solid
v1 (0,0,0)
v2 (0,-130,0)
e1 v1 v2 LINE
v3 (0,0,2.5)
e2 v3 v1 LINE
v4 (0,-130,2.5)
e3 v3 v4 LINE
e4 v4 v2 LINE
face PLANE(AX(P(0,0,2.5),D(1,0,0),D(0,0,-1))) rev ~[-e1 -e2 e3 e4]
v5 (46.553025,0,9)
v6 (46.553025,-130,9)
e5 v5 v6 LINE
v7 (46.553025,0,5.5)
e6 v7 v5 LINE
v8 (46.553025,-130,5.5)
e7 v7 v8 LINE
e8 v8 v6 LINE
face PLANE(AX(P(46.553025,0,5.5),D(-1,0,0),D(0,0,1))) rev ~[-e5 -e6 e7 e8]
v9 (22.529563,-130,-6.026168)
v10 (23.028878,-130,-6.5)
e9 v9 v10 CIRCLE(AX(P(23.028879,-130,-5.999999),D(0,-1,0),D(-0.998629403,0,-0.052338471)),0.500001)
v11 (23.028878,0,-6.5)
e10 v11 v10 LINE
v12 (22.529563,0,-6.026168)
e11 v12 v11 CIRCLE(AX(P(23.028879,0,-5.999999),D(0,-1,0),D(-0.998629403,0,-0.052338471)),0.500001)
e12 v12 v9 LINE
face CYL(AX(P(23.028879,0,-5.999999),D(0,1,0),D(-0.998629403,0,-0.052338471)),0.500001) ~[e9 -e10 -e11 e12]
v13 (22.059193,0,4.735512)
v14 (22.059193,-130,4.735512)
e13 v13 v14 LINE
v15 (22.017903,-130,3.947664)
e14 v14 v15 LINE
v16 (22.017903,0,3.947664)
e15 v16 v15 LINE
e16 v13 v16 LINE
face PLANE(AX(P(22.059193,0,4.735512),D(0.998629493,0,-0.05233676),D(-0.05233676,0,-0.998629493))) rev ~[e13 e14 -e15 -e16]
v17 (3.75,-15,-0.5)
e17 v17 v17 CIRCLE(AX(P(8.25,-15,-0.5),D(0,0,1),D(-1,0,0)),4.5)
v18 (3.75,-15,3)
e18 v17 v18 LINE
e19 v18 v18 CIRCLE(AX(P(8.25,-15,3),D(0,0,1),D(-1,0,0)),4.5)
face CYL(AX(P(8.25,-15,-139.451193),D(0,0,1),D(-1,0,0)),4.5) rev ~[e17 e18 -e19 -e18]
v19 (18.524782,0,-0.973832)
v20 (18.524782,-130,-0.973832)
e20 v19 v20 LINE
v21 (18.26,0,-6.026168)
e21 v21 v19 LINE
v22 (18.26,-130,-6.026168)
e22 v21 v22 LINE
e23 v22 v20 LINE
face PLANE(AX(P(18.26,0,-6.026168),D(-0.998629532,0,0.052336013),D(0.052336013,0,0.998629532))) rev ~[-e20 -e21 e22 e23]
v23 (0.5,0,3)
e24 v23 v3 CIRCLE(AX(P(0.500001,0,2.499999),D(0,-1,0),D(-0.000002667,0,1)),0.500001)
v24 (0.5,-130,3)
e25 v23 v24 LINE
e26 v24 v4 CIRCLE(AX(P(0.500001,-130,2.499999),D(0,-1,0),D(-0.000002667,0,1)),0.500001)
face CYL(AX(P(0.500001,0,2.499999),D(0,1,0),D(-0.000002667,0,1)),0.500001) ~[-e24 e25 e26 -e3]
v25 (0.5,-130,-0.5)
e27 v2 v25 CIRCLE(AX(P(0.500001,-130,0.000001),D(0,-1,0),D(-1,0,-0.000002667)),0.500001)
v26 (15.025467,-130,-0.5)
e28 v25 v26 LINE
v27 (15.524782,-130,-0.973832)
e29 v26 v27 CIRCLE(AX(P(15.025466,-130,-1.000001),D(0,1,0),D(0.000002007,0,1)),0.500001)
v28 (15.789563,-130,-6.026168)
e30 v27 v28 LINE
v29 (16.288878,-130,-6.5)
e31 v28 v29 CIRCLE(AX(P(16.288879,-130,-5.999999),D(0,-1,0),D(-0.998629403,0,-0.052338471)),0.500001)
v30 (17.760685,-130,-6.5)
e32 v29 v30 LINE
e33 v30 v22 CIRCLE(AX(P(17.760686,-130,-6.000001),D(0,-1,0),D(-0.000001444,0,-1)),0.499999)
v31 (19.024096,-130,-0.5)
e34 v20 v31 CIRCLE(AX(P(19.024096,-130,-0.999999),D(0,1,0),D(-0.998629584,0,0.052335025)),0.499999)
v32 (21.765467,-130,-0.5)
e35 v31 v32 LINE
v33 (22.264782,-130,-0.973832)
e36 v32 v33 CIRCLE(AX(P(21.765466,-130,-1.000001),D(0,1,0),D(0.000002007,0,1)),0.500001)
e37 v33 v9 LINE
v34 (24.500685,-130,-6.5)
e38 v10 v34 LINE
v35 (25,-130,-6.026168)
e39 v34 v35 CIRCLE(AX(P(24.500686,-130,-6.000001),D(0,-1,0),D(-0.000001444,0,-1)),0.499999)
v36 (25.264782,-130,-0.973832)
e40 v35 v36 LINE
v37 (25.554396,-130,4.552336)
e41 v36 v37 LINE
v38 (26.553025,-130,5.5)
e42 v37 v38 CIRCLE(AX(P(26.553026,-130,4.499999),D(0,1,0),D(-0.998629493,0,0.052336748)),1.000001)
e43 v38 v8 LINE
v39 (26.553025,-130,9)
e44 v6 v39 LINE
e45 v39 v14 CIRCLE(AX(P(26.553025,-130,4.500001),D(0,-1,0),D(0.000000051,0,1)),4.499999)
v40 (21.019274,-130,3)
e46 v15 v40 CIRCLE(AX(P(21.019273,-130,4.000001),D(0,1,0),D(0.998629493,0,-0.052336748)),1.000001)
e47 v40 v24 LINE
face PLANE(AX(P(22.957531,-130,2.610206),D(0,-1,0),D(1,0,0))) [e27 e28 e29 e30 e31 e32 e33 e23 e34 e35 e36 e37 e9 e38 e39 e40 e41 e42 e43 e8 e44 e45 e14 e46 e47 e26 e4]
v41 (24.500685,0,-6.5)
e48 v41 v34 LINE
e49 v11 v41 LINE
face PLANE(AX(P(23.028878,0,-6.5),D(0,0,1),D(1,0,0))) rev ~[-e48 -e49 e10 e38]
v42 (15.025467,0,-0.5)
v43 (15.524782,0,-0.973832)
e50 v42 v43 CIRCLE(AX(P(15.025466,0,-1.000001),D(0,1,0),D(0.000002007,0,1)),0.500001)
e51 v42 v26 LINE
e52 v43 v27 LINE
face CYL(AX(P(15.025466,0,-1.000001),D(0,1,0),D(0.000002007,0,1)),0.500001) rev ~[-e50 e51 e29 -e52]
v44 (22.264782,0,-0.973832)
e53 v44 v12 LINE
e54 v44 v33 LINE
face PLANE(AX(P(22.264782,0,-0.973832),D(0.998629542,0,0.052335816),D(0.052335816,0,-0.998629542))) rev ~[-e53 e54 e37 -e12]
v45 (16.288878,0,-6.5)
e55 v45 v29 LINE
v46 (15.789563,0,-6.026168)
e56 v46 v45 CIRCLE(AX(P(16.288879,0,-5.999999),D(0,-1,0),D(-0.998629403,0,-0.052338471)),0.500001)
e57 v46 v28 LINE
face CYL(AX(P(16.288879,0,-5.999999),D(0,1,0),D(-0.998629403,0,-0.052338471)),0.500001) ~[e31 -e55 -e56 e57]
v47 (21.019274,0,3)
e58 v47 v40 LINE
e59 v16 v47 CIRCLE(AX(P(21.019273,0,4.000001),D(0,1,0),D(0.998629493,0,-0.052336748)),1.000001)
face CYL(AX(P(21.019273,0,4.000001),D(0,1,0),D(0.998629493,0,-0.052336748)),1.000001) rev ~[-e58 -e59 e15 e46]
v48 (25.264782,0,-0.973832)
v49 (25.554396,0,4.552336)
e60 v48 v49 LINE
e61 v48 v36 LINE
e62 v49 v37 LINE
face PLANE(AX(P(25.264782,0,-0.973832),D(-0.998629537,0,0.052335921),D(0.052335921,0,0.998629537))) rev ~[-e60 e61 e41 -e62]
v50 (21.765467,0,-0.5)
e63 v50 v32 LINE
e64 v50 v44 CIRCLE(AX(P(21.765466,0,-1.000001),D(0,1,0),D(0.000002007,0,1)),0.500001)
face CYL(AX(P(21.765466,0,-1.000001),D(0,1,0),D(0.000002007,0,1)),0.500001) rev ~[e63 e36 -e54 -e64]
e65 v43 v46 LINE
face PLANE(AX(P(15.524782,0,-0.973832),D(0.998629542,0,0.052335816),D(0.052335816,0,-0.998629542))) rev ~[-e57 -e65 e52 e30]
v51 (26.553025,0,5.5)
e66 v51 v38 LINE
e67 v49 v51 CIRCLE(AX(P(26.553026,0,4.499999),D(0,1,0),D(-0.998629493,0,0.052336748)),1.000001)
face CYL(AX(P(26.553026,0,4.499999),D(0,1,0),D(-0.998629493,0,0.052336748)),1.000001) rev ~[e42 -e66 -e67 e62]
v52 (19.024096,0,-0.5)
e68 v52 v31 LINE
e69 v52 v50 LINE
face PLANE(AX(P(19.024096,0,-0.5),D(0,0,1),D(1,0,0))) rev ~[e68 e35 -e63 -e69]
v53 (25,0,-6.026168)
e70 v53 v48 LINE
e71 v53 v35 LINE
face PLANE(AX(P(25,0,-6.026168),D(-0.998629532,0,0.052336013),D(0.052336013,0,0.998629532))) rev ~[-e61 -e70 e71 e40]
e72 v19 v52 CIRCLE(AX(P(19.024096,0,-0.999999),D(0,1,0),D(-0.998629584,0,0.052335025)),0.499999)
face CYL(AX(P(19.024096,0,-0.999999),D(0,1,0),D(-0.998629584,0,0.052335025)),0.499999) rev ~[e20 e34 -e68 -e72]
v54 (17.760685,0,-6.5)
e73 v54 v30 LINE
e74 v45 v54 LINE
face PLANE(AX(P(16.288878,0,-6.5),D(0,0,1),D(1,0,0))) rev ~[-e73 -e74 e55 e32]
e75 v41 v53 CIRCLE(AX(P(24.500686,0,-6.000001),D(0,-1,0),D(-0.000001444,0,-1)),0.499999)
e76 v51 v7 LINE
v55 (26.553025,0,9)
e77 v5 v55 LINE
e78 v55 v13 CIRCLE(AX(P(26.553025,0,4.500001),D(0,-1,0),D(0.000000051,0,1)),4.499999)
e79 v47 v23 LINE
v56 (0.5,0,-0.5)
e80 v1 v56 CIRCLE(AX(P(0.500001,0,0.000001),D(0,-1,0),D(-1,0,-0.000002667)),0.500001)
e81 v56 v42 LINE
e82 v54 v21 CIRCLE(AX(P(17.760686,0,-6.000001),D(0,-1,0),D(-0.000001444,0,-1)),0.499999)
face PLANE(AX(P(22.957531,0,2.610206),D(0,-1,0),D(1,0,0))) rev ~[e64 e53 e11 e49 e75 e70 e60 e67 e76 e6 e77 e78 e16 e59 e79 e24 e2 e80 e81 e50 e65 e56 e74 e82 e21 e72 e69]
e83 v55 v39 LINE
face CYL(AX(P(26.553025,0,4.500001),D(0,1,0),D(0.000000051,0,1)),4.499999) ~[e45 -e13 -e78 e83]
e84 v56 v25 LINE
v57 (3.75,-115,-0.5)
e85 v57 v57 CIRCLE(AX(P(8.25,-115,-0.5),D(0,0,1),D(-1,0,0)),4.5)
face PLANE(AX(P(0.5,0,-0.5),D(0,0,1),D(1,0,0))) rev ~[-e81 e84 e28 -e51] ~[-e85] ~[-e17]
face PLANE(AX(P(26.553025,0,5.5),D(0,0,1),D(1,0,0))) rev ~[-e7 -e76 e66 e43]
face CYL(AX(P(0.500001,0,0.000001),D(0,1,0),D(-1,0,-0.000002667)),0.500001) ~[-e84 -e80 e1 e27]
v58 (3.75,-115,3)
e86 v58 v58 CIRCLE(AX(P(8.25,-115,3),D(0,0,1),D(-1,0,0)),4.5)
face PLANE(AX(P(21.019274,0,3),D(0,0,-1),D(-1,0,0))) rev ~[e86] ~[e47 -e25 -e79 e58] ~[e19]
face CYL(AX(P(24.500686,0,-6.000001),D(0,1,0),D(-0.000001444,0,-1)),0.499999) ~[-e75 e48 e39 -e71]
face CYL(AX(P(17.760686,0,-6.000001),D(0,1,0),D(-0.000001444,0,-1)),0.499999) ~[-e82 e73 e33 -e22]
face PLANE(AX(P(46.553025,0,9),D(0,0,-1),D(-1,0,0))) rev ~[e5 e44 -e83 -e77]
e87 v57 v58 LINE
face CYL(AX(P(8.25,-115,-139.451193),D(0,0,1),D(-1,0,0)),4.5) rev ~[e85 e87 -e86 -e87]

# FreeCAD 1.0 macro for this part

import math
import FreeCAD as App
import Part
import Sketcher

V = App.Vector
Q = App.Units.Quantity

doc = App.newDocument("Part")
body = doc.addObject("PartDesign::Body", "Body")

# Sketch on XZ plane
sketch1 = body.newObject("Sketcher::SketchObject", "Sketch")
sketch1.AttachmentSupport = (doc.getObject("XZ_Plane"), [""])
sketch1.MapMode = "FlatFace"
sketch1.addGeometry([
    Part.LineSegment(V(25, -6.03, 0), V(25.26, -0.97, 0)),  # 0
    Part.LineSegment(V(25.26, -0.97, 0), V(25.55, 4.55, 0)),  # 1
    Part.ArcOfCircle(Part.Circle(V(26.55, 4.5, 0), V(0, 0, 1), 1), math.radians(90), math.radians(177)),  # 2
    Part.LineSegment(V(26.55, 5.5, 0), V(46.55, 5.5, 0)),  # 3
    Part.LineSegment(V(46.55, 5.5, 0), V(46.55, 9, 0)),  # 4
    Part.LineSegment(V(46.55, 9, 0), V(26.55, 9, 0)),  # 5
    Part.ArcOfCircle(Part.Circle(V(26.55, 4.5, 0), V(0, 0, 1), 4.5), math.radians(90), math.radians(177)),  # 6
    Part.LineSegment(V(22.06, 4.74, 0), V(22.02, 3.95, 0)),  # 7
    Part.ArcOfCircle(Part.Circle(V(21.02, 4, 0), V(0, 0, 1), 1), math.radians(-90), math.radians(-3)),  # 8
    Part.LineSegment(V(21.02, 3, 0), V(0.5, 3, 0)),  # 9
    Part.ArcOfCircle(Part.Circle(V(0.5, 2.5, 0), V(0, 0, 1), 0.5), math.radians(90), math.radians(180)),  # 10
    Part.LineSegment(V(0, 2.5, 0), V(0, 0, 0)),  # 11
    Part.ArcOfCircle(Part.Circle(V(0.5, 0, 0), V(0, 0, 1), 0.5), math.radians(-180), math.radians(-90)),  # 12
    Part.LineSegment(V(0.5, -0.5, 0), V(15.03, -0.5, 0)),  # 13
    Part.ArcOfCircle(Part.Circle(V(15.03, -1, 0), V(0, 0, 1), 0.5), math.radians(3), math.radians(90)),  # 14
    Part.LineSegment(V(15.52, -0.97, 0), V(15.79, -6.03, 0)),  # 15
    Part.ArcOfCircle(Part.Circle(V(16.29, -6, 0), V(0, 0, 1), 0.5), math.radians(-177), math.radians(-90)),  # 16
    Part.LineSegment(V(16.29, -6.5, 0), V(17.76, -6.5, 0)),  # 17
    Part.ArcOfCircle(Part.Circle(V(17.76, -6, 0), V(0, 0, 1), 0.5), math.radians(-90), math.radians(-3)),  # 18
    Part.LineSegment(V(18.26, -6.03, 0), V(18.52, -0.97, 0)),  # 19
    Part.ArcOfCircle(Part.Circle(V(19.02, -1, 0), V(0, 0, 1), 0.5), math.radians(90), math.radians(177)),  # 20
    Part.LineSegment(V(19.02, -0.5, 0), V(21.77, -0.5, 0)),  # 21
    Part.ArcOfCircle(Part.Circle(V(21.77, -1, 0), V(0, 0, 1), 0.5), math.radians(3), math.radians(90)),  # 22
    Part.LineSegment(V(22.26, -0.97, 0), V(22.53, -6.03, 0)),  # 23
    Part.ArcOfCircle(Part.Circle(V(23.03, -6, 0), V(0, 0, 1), 0.5), math.radians(-177), math.radians(-90)),  # 24
    Part.LineSegment(V(23.03, -6.5, 0), V(24.5, -6.5, 0)),  # 25
    Part.ArcOfCircle(Part.Circle(V(24.5, -6, 0), V(0, 0, 1), 0.5), math.radians(-90), math.radians(-3)),  # 26
], False)
sketch1.addConstraint([
    Sketcher.Constraint("Coincident", 0, 2, 1, 1),
    Sketcher.Constraint("Tangent", 1, 2, 2, 2),
    Sketcher.Constraint("Tangent", 2, 1, 3, 1),
    Sketcher.Constraint("Coincident", 3, 2, 4, 1),
    Sketcher.Constraint("Coincident", 4, 2, 5, 1),
    Sketcher.Constraint("Tangent", 5, 2, 6, 1),
    Sketcher.Constraint("Tangent", 6, 2, 7, 1),
    Sketcher.Constraint("Tangent", 7, 2, 8, 2),
    Sketcher.Constraint("Tangent", 8, 1, 9, 1),
    Sketcher.Constraint("Coincident", 9, 2, 10, 1),
    Sketcher.Constraint("Coincident", 10, 2, 11, 1),
    Sketcher.Constraint("Coincident", 11, 2, 12, 1),
    Sketcher.Constraint("Coincident", 12, 2, 13, 1),
    Sketcher.Constraint("Coincident", 13, 2, 14, 2),
    Sketcher.Constraint("Coincident", 14, 1, 15, 1),
    Sketcher.Constraint("Coincident", 15, 2, 16, 1),
    Sketcher.Constraint("Coincident", 16, 2, 17, 1),
    Sketcher.Constraint("Tangent", 17, 2, 18, 1),
    Sketcher.Constraint("Tangent", 18, 2, 19, 1),
    Sketcher.Constraint("Tangent", 19, 2, 20, 2),
    Sketcher.Constraint("Tangent", 20, 1, 21, 1),
    Sketcher.Constraint("Coincident", 21, 2, 22, 2),
    Sketcher.Constraint("Coincident", 22, 1, 23, 1),
    Sketcher.Constraint("Coincident", 23, 2, 24, 1),
    Sketcher.Constraint("Coincident", 24, 2, 25, 1),
    Sketcher.Constraint("Tangent", 25, 2, 26, 1),
    Sketcher.Constraint("Tangent", 26, 2, 0, 1),
    Sketcher.Constraint("Horizontal", 3),
    Sketcher.Constraint("Vertical", 4),
    Sketcher.Constraint("Horizontal", 5),
    Sketcher.Constraint("Horizontal", 9),
    Sketcher.Constraint("Vertical", 11),
    Sketcher.Constraint("Horizontal", 13),
    Sketcher.Constraint("Horizontal", 17),
    Sketcher.Constraint("Horizontal", 21),
    Sketcher.Constraint("Horizontal", 25),
    Sketcher.Constraint("Coincident", 11, 2, -1, 1),
    Sketcher.Constraint("Coincident", 6, 3, 2, 3),
    Sketcher.Constraint("Equal", 2, 8),
    Sketcher.Constraint("Equal", 10, 12),
    Sketcher.Constraint("Equal", 12, 14),
    Sketcher.Constraint("Equal", 14, 16),
    Sketcher.Constraint("Equal", 16, 18),
    Sketcher.Constraint("Equal", 18, 20),
    Sketcher.Constraint("Equal", 20, 22),
    Sketcher.Constraint("Equal", 22, 24),
    Sketcher.Constraint("Equal", 24, 26),
    Sketcher.Constraint("PointOnObject", 12, 3, -1),
    Sketcher.Constraint("Parallel", 0, 1),
    Sketcher.Constraint("Parallel", 1, 7),
    Sketcher.Constraint("Parallel", 7, 19),
    Sketcher.Constraint("Parallel", 15, 23),
    Sketcher.Constraint("Horizontal", 14, 3, 20, 3),
    Sketcher.Constraint("Horizontal", 18, 3, 24, 3),
    Sketcher.Constraint("Horizontal", 0, 2, 14, 1),
    Sketcher.Constraint("Horizontal", 15, 2, 18, 2),
    Sketcher.Constraint("Horizontal", 14, 1, 19, 2),
    Sketcher.Constraint("Horizontal", 19, 2, 22, 1),
    Sketcher.Constraint("Horizontal", 18, 2, 23, 2),
    Sketcher.Constraint("Vertical", 12, 3, 9, 2),
    Sketcher.Constraint("Vertical", 9, 2, 12, 2),
    Sketcher.Constraint("Vertical", 14, 3, 13, 2),
    Sketcher.Constraint("Vertical", 22, 3, 21, 2),
    Sketcher.Constraint("Equal", 17, 25),
    Sketcher.Constraint("Equal", 0, 15),
    Sketcher.Constraint("Radius", 2, Q("1.000001 mm")),
    Sketcher.Constraint("Radius", 6, Q("4.499999 mm")),
    Sketcher.Constraint("Radius", 10, Q("0.500001 mm")),
    Sketcher.Constraint("DistanceX", 3, 1, 3, 2, Q("20 mm")),
    Sketcher.Constraint("Angle", 0, Q("86.999997 deg")),
    Sketcher.Constraint("DistanceY", 11, 2, 11, 1, Q("2.5 mm")),
    Sketcher.Constraint("DistanceY", -1, 1, 8, 3, Q("4.000001 mm")),
    Sketcher.Constraint("DistanceY", 16, 3, -1, 1, Q("5.999999 mm")),
    Sketcher.Constraint("DistanceY", -1, 1, 4, 2, Q("9 mm")),
    Sketcher.Constraint("DistanceX", -1, 1, 26, 2, Q("25 mm")),
    Sketcher.Constraint("DistanceX", 14, 1, 19, 2, Q("3 mm")),
    Sketcher.Constraint("DistanceX", 22, 1, 0, 2, Q("3 mm")),
    Sketcher.Constraint("DistanceX", -1, 1, 18, 2, Q("18.26 mm")),
    Sketcher.Constraint("DistanceX", 17, 1, 17, 2, Q("1.471807 mm")),
])
pad1 = body.newObject("PartDesign::Pad", "Pad")
pad1.Profile = sketch1
pad1.Length = 130

# Sketch on XY plane
sketch2 = body.newObject("Sketcher::SketchObject", "Sketch001")
sketch2.AttachmentSupport = (doc.getObject("XY_Plane"), [""])
sketch2.MapMode = "FlatFace"
sketch2.AttachmentOffset = App.Placement(V(0, 0, -0.5), App.Rotation())
sketch2.addGeometry(Part.Circle(V(8.2, -115, 0), V(0, 0, 1), 4.5), False)
sketch2.addConstraint([
    Sketcher.Constraint("Diameter", 0, Q("9 mm")),
    Sketcher.Constraint("DistanceY", 0, 3, -1, 1, Q("115 mm")),
    Sketcher.Constraint("DistanceX", -1, 1, 0, 3, Q("8.25 mm")),
])
doc.recompute()
hole = body.newObject("PartDesign::Hole", "Hole")
hole.Profile = sketch2
hole.ThreadType = "None"
hole.Diameter = 9
hole.DepthType = "ThroughAll"
hole.Reversed = True

# Sketch on XY plane
sketch3 = body.newObject("Sketcher::SketchObject", "Sketch002")
sketch3.AttachmentSupport = (doc.getObject("XY_Plane"), [""])
sketch3.MapMode = "FlatFace"
sketch3.AttachmentOffset = App.Placement(V(0, 0, -0.5), App.Rotation())
sketch3.addGeometry(Part.Circle(V(8.2, -15, 0), V(0, 0, 1), 4.5), False)
sketch3.addConstraint([
    Sketcher.Constraint("Diameter", 0, Q("9 mm")),
    Sketcher.Constraint("DistanceY", 0, 3, -1, 1, Q("15 mm")),
    Sketcher.Constraint("DistanceX", -1, 1, 0, 3, Q("8.25 mm")),
])
doc.recompute()
hole2 = body.newObject("PartDesign::Hole", "Hole001")
hole2.Profile = sketch3
hole2.ThreadType = "None"
hole2.Diameter = 9
hole2.DepthType = "ThroughAll"
hole2.Reversed = True

doc.recompute()
